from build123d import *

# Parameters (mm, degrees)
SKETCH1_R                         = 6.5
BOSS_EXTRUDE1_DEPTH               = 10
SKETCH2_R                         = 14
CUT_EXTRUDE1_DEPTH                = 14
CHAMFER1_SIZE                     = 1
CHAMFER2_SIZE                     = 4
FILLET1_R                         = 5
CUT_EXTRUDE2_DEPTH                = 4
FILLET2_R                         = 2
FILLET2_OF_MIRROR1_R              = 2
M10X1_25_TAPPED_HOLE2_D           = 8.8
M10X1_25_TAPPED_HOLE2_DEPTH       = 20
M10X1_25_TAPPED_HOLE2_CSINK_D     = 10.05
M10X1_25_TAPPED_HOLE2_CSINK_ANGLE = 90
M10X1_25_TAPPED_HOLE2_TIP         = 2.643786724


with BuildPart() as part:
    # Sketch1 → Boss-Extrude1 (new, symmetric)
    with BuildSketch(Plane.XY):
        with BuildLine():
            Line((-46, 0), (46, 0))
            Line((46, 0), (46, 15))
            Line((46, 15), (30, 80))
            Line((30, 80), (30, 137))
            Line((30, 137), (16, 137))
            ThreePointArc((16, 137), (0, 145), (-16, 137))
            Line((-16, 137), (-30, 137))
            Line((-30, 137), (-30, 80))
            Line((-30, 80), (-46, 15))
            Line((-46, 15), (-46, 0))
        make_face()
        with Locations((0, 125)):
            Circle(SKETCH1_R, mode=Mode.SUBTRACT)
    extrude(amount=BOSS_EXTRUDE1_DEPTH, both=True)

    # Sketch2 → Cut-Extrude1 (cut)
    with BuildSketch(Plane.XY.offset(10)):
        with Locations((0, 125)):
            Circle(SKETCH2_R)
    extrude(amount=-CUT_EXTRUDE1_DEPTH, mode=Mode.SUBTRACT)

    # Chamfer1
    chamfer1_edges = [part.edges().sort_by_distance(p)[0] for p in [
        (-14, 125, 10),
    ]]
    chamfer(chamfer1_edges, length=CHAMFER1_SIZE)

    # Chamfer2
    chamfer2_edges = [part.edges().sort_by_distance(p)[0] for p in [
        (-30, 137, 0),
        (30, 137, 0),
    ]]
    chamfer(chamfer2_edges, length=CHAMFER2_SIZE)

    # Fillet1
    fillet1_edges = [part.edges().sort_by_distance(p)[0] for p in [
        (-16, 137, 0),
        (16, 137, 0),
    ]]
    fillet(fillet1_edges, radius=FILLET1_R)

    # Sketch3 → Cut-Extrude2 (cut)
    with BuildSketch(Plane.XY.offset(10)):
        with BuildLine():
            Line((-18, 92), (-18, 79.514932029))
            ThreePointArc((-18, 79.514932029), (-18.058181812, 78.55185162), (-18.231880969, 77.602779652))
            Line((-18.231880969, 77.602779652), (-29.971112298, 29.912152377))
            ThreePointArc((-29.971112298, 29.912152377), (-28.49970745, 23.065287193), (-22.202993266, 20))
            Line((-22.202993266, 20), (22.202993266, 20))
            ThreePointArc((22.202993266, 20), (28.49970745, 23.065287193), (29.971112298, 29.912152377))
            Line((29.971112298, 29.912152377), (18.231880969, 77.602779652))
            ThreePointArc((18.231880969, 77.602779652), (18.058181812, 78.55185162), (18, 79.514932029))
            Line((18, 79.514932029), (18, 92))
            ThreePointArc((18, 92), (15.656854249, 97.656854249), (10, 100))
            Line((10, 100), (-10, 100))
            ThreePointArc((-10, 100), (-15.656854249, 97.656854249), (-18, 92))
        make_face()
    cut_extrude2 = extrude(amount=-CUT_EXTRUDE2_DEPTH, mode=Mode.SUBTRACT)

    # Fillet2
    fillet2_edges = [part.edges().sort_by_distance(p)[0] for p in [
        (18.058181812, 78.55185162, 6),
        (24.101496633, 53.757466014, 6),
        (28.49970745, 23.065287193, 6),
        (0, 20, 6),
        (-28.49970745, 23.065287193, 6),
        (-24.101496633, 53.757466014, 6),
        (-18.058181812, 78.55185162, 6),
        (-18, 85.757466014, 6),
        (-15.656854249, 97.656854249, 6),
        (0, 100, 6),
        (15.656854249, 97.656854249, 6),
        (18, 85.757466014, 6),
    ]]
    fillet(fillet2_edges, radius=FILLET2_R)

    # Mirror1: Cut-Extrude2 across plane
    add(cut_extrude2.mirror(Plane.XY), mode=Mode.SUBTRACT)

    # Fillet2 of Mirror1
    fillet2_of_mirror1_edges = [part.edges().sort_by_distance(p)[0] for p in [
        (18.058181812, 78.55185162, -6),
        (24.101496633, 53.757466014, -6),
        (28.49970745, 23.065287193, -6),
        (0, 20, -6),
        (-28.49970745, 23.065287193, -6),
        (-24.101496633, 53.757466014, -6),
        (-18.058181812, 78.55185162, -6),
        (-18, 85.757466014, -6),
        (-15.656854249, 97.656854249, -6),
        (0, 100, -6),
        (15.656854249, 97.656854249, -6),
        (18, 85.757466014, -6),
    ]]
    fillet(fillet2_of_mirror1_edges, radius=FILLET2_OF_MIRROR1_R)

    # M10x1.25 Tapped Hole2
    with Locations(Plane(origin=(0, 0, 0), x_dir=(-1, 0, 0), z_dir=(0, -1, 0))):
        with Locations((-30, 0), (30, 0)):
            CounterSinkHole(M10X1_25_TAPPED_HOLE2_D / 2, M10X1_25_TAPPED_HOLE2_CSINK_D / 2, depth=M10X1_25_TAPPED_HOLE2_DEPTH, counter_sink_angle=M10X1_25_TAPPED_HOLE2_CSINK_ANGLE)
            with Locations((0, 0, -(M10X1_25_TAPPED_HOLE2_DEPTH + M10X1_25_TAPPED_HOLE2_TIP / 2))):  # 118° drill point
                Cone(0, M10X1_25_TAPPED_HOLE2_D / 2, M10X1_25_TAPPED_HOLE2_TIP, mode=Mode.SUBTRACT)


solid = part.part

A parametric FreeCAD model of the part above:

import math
import FreeCAD as App
import Part
import Sketcher
from FreeCAD import Vector


def edges_at(feature, points):
    """Names of the edges that pass closest to the given points."""
    edges = feature.Shape.Edges
    near = lambda p: min(range(len(edges)), key=lambda i: edges[i].distToShape(Part.Vertex(*p))[0])
    return sorted({f"Edge{near(p) + 1}" for p in points})

doc = App.newDocument("Part")
params = doc.addObject("Spreadsheet::Sheet", "Params")
for row, (alias, value) in enumerate([
    ("sketch1_diameter", "13 mm"),
    ("sketch1_radius", "20 mm"),
    ("sketch1_width", "92 mm"),
    ("sketch1_width2", "14 mm"),
    ("sketch1_height", "15 mm"),
    ("pad1_length", "20 mm"),
    ("sketch2_diameter", "28 mm"),
    ("pocket1_length", "14 mm"),
    ("chamfer_size", "1 mm"),
    ("chamfer2_size", "4 mm"),
    ("fillet_radius", "5 mm"),
    ("sketch3_radius", "8 mm"),
    ("sketch3_width", "20 mm"),
    ("pocket2_length", "4 mm"),
    ("fillet2_radius", "2 mm"),
    ("fillet3_radius", "2 mm"),
    ("sketch4_diameter", "8.8 mm"),
    ("hole_diameter", "8.8 mm"),
    ("hole_depth", "20 mm"),
    ("hole_csink_diameter", "10.05 mm"),
], start=1):
    params.set(f"A{row}", alias)
    params.set(f"B{row}", "=" + value)
    params.setAlias(f"B{row}", alias)

body = doc.addObject("PartDesign::Body", "Body")

# Sketch on XY plane
sketch1 = body.newObject("Sketcher::SketchObject", "Sketch")
sketch1.AttachmentSupport = (doc.getObject("XY_Plane"), [""])
sketch1.MapMode = "FlatFace"
sketch1.addGeometry(Part.LineSegment(Vector(-46, 0, 0), Vector(46, 0, 0)), False)
sketch1.addGeometry(Part.LineSegment(Vector(46, 0, 0), Vector(46, 15, 0)), False)
sketch1.addGeometry(Part.LineSegment(Vector(46, 15, 0), Vector(30, 80, 0)), False)
sketch1.addGeometry(Part.LineSegment(Vector(30, 80, 0), Vector(30, 137, 0)), False)
sketch1.addGeometry(Part.LineSegment(Vector(30, 137, 0), Vector(16, 137, 0)), False)
sketch1.addGeometry(Part.ArcOfCircle(Part.Circle(Vector(0, 125, 0), Vector(0, 0, 1), 20), math.radians(37), math.radians(143)), False)
sketch1.addGeometry(Part.LineSegment(Vector(-16, 137, 0), Vector(-30, 137, 0)), False)
sketch1.addGeometry(Part.LineSegment(Vector(-30, 137, 0), Vector(-30, 80, 0)), False)
sketch1.addGeometry(Part.LineSegment(Vector(-30, 80, 0), Vector(-46, 15, 0)), False)
sketch1.addGeometry(Part.LineSegment(Vector(-46, 15, 0), Vector(-46, 0, 0)), False)
sketch1.addGeometry(Part.Circle(Vector(0, 125, 0), Vector(0, 0, 1), 6), False)
sketch1.addConstraint(Sketcher.Constraint("Coincident", 0, 2, 1, 1))
sketch1.addConstraint(Sketcher.Constraint("Coincident", 1, 2, 2, 1))
sketch1.addConstraint(Sketcher.Constraint("Coincident", 2, 2, 3, 1))
sketch1.addConstraint(Sketcher.Constraint("Coincident", 3, 2, 4, 1))
sketch1.addConstraint(Sketcher.Constraint("Coincident", 4, 2, 5, 1))
sketch1.addConstraint(Sketcher.Constraint("Coincident", 5, 2, 6, 1))
sketch1.addConstraint(Sketcher.Constraint("Coincident", 6, 2, 7, 1))
sketch1.addConstraint(Sketcher.Constraint("Coincident", 7, 2, 8, 1))
sketch1.addConstraint(Sketcher.Constraint("Coincident", 8, 2, 9, 1))
sketch1.addConstraint(Sketcher.Constraint("Coincident", 9, 2, 0, 1))
sketch1.addConstraint(Sketcher.Constraint("Horizontal", 0))
sketch1.addConstraint(Sketcher.Constraint("Vertical", 1))
sketch1.addConstraint(Sketcher.Constraint("Vertical", 3))
sketch1.addConstraint(Sketcher.Constraint("Horizontal", 4))
sketch1.addConstraint(Sketcher.Constraint("Horizontal", 6))
sketch1.addConstraint(Sketcher.Constraint("Vertical", 7))
sketch1.addConstraint(Sketcher.Constraint("Vertical", 9))
sketch1.addConstraint(Sketcher.Constraint("Coincident", 10, 3, 5, 3))
sketch1.addConstraint(Sketcher.Constraint("Symmetric", 0, 2, 9, 2, -1, 1))
sketch1.addConstraint(Sketcher.Constraint("Symmetric", 4, 2, 5, 2, -2))
sketch1.addConstraint(Sketcher.Constraint("Symmetric", 2, 2, 7, 2, -2))
sketch1.addConstraint(Sketcher.Constraint("Horizontal", 1, 2, 8, 2))
sketch1.addConstraint(Sketcher.Constraint("Diameter", 10, 13.0))
sketch1.addConstraint(Sketcher.Constraint("Radius", 5, 20.0))
sketch1.addConstraint(Sketcher.Constraint("DistanceX", 0, 1, 0, 2, 92.0))
sketch1.addConstraint(Sketcher.Constraint("DistanceX", 4, 2, 4, 1, 14.0))
sketch1.addConstraint(Sketcher.Constraint("DistanceY", 1, 1, 1, 2, 15.0))
sketch1.addConstraint(Sketcher.Constraint("DistanceY", 3, 1, 3, 2, 57.0))
sketch1.addConstraint(Sketcher.Constraint("DistanceY", -1, 1, 5, 3, 125.0))
sketch1.addConstraint(Sketcher.Constraint("DistanceX", -1, 1, 2, 2, 30.0))
sketch1.setExpression("Constraints[22]", "Params.sketch1_diameter")
sketch1.setExpression("Constraints[23]", "Params.sketch1_radius")
sketch1.setExpression("Constraints[24]", "Params.sketch1_width")
sketch1.setExpression("Constraints[25]", "Params.sketch1_width2")
sketch1.setExpression("Constraints[26]", "Params.sketch1_height")
pad1 = body.newObject("PartDesign::Pad", "Pad")
pad1.Profile = sketch1
pad1.setExpression("Length", "Params.pad1_length")
pad1.Midplane = True

# Sketch on XY plane
sketch2 = body.newObject("Sketcher::SketchObject", "Sketch001")
sketch2.AttachmentSupport = (doc.getObject("XY_Plane"), [""])
sketch2.MapMode = "FlatFace"
sketch2.AttachmentOffset = App.Placement(Vector(0, 0, 10), App.Rotation())
sketch2.addGeometry(Part.Circle(Vector(0, 125, 0), Vector(0, 0, 1), 14), False)
sketch2.addConstraint(Sketcher.Constraint("PointOnObject", 0, 3, -2))
sketch2.addConstraint(Sketcher.Constraint("Diameter", 0, 28.0))
sketch2.addConstraint(Sketcher.Constraint("DistanceY", -1, 1, 0, 3, 125.0))
sketch2.setExpression("Constraints[1]", "Params.sketch2_diameter")
pocket1 = body.newObject("PartDesign::Pocket", "Pocket")
pocket1.Profile = sketch2
pocket1.setExpression("Length", "Params.pocket1_length")
doc.recompute()

chamfer = body.newObject("PartDesign::Chamfer", "Chamfer")
chamfer.Base = (pocket1, edges_at(pocket1, [(-14, 125, 10)]))
chamfer.setExpression("Size", "Params.chamfer_size")
doc.recompute()

chamfer2 = body.newObject("PartDesign::Chamfer", "Chamfer001")
chamfer2.Base = (chamfer, edges_at(chamfer, [(-30, 137, 0), (30, 137, 0)]))
chamfer2.setExpression("Size", "Params.chamfer2_size")
doc.recompute()

fillet = body.newObject("PartDesign::Fillet", "Fillet")
fillet.Base = (chamfer2, edges_at(chamfer2, [(-16, 137, 0), (16, 137, 0)]))
fillet.setExpression("Radius", "Params.fillet_radius")

# Sketch on XY plane
sketch3 = body.newObject("Sketcher::SketchObject", "Sketch002")
sketch3.AttachmentSupport = (doc.getObject("XY_Plane"), [""])
sketch3.MapMode = "FlatFace"
sketch3.AttachmentOffset = App.Placement(Vector(0, 0, 10), App.Rotation())
sketch3.addGeometry(Part.LineSegment(Vector(-18, 92, 0), Vector(-18, 79.5, 0)), False)
sketch3.addGeometry(Part.ArcOfCircle(Part.Circle(Vector(-26, 79.5, 0), Vector(0, 0, 1), 8), math.radians(-13.83), math.radians(0)), False)
sketch3.addGeometry(Part.LineSegment(Vector(-18.2, 77.6, 0), Vector(-30, 29.9, 0)), False)
sketch3.addGeometry(Part.ArcOfCircle(Part.Circle(Vector(-22.2, 28, 0), Vector(0, 0, 1), 8), math.radians(166), math.radians(270)), False)
sketch3.addGeometry(Part.LineSegment(Vector(-22.2, 20, 0), Vector(22.2, 20, 0)), False)
sketch3.addGeometry(Part.ArcOfCircle(Part.Circle(Vector(22.2, 28, 0), Vector(0, 0, 1), 8), math.radians(-90), math.radians(14)), False)
sketch3.addGeometry(Part.LineSegment(Vector(30, 29.9, 0), Vector(18.2, 77.6, 0)), False)
sketch3.addGeometry(Part.ArcOfCircle(Part.Circle(Vector(26, 79.5, 0), Vector(0, 0, 1), 8), math.radians(180), math.radians(193.83)), False)
sketch3.addGeometry(Part.LineSegment(Vector(18, 79.5, 0), Vector(18, 92, 0)), False)
sketch3.addGeometry(Part.ArcOfCircle(Part.Circle(Vector(10, 92, 0), Vector(0, 0, 1), 8), math.radians(0), math.radians(90)), False)
sketch3.addGeometry(Part.LineSegment(Vector(10, 100, 0), Vector(-10, 100, 0)), False)
sketch3.addGeometry(Part.ArcOfCircle(Part.Circle(Vector(-10, 92, 0), Vector(0, 0, 1), 8), math.radians(90), math.radians(180)), False)
sketch3.addConstraint(Sketcher.Constraint("Tangent", 0, 2, 1, 2))
sketch3.addConstraint(Sketcher.Constraint("Tangent", 1, 1, 2, 1))
sketch3.addConstraint(Sketcher.Constraint("Tangent", 2, 2, 3, 1))
sketch3.addConstraint(Sketcher.Constraint("Tangent", 3, 2, 4, 1))
sketch3.addConstraint(Sketcher.Constraint("Tangent", 4, 2, 5, 1))
sketch3.addConstraint(Sketcher.Constraint("Tangent", 5, 2, 6, 1))
sketch3.addConstraint(Sketcher.Constraint("Tangent", 6, 2, 7, 2))
sketch3.addConstraint(Sketcher.Constraint("Tangent", 7, 1, 8, 1))
sketch3.addConstraint(Sketcher.Constraint("Tangent", 8, 2, 9, 1))
sketch3.addConstraint(Sketcher.Constraint("Tangent", 9, 2, 10, 1))
sketch3.addConstraint(Sketcher.Constraint("Tangent", 10, 2, 11, 1))
sketch3.addConstraint(Sketcher.Constraint("Tangent", 11, 2, 0, 1))
sketch3.addConstraint(Sketcher.Constraint("Vertical", 0))
sketch3.addConstraint(Sketcher.Constraint("Horizontal", 4))
sketch3.addConstraint(Sketcher.Constraint("Vertical", 8))
sketch3.addConstraint(Sketcher.Constraint("Horizontal", 10))
sketch3.addConstraint(Sketcher.Constraint("Equal", 1, 3))
sketch3.addConstraint(Sketcher.Constraint("Equal", 3, 5))
sketch3.addConstraint(Sketcher.Constraint("Equal", 5, 7))
sketch3.addConstraint(Sketcher.Constraint("Equal", 7, 9))
sketch3.addConstraint(Sketcher.Constraint("Equal", 9, 11))
sketch3.addConstraint(Sketcher.Constraint("Symmetric", 1, 3, 7, 3, -2))
sketch3.addConstraint(Sketcher.Constraint("Horizontal", 2, 2, 5, 2))
sketch3.addConstraint(Sketcher.Constraint("Radius", 1, 8.0))
sketch3.addConstraint(Sketcher.Constraint("DistanceX", 10, 2, 10, 1, 20.0))
sketch3.addConstraint(Sketcher.Constraint("DistanceY", -1, 1, 3, 3, 28.0))
sketch3.addConstraint(Sketcher.Constraint("DistanceY", -1, 1, 9, 3, 92.0))
sketch3.addConstraint(Sketcher.Constraint("Distance", 2, 49.114209))
sketch3.addConstraint(Sketcher.Constraint("DistanceX", 4, 1, 4, 2, 44.405987))
sketch3.setExpression("Constraints[23]", "Params.sketch3_radius")
sketch3.setExpression("Constraints[24]", "Params.sketch3_width")
pocket2 = body.newObject("PartDesign::Pocket", "Pocket001")
pocket2.Profile = sketch3
pocket2.setExpression("Length", "Params.pocket2_length")
doc.recompute()

fillet2 = body.newObject("PartDesign::Fillet", "Fillet001")
fillet2.Base = (pocket2, edges_at(pocket2, [
    (18.058, 78.552, 6),
    (24.101, 53.757, 6),
    (28.5, 23.065, 6),
    (0, 20, 6),
    (-28.5, 23.065, 6),
    (-24.101, 53.757, 6),
    (-18.058, 78.552, 6),
    (-18, 85.757, 6),
    (-15.657, 97.657, 6),
    (0, 100, 6),
    (15.657, 97.657, 6),
    (18, 85.757, 6),
]))
fillet2.setExpression("Radius", "Params.fillet2_radius")
doc.recompute()

mirrored = body.newObject("PartDesign::Mirrored", "Mirrored")
mirrored.Originals = [pocket2]
mirrored.MirrorPlane = (doc.getObject("XY_Plane"), [""])
body.Tip = mirrored
doc.recompute()

fillet3 = body.newObject("PartDesign::Fillet", "Fillet002")
fillet3.Base = (mirrored, edges_at(mirrored, [
    (18.058, 78.552, -6),
    (24.101, 53.757, -6),
    (28.5, 23.065, -6),
    (0, 20, -6),
    (-28.5, 23.065, -6),
    (-24.101, 53.757, -6),
    (-18.058, 78.552, -6),
    (-18, 85.757, -6),
    (-15.657, 97.657, -6),
    (0, 100, -6),
    (15.657, 97.657, -6),
    (18, 85.757, -6),
]))
fillet3.setExpression("Radius", "Params.fillet3_radius")

# Sketch on XZ plane
sketch4 = body.newObject("Sketcher::SketchObject", "Sketch003")
sketch4.AttachmentSupport = (doc.getObject("XZ_Plane"), [""])
sketch4.MapMode = "FlatFace"
sketch4.addGeometry(Part.Circle(Vector(30, 0, 0), Vector(0, 0, 1), 4.4), False)
sketch4.addGeometry(Part.Circle(Vector(-30, 0, 0), Vector(0, 0, 1), 4.4), False)
sketch4.addConstraint(Sketcher.Constraint("Equal", 0, 1))
sketch4.addConstraint(Sketcher.Constraint("Symmetric", 0, 3, 1, 3, -1, 1))
sketch4.addConstraint(Sketcher.Constraint("PointOnObject", 0, 3, -1))
sketch4.addConstraint(Sketcher.Constraint("Diameter", 0, 8.8))
sketch4.addConstraint(Sketcher.Constraint("DistanceX", -1, 1, 0, 3, 30.0))
sketch4.setExpression("Constraints[3]", "Params.sketch4_diameter")
doc.recompute()
hole = body.newObject("PartDesign::Hole", "Hole")
hole.Profile = sketch4
hole.ThreadType = "None"
hole.setExpression("Diameter", "Params.hole_diameter")
hole.DepthType = "Dimension"
hole.setExpression("Depth", "Params.hole_depth")
hole.DrillPoint = "Angled"
hole.DrillPointAngle = 118
hole.HoleCutType = "Countersink"
hole.setExpression("HoleCutDiameter", "Params.hole_csink_diameter")
hole.HoleCutCountersinkAngle = 90

doc.recompute()
